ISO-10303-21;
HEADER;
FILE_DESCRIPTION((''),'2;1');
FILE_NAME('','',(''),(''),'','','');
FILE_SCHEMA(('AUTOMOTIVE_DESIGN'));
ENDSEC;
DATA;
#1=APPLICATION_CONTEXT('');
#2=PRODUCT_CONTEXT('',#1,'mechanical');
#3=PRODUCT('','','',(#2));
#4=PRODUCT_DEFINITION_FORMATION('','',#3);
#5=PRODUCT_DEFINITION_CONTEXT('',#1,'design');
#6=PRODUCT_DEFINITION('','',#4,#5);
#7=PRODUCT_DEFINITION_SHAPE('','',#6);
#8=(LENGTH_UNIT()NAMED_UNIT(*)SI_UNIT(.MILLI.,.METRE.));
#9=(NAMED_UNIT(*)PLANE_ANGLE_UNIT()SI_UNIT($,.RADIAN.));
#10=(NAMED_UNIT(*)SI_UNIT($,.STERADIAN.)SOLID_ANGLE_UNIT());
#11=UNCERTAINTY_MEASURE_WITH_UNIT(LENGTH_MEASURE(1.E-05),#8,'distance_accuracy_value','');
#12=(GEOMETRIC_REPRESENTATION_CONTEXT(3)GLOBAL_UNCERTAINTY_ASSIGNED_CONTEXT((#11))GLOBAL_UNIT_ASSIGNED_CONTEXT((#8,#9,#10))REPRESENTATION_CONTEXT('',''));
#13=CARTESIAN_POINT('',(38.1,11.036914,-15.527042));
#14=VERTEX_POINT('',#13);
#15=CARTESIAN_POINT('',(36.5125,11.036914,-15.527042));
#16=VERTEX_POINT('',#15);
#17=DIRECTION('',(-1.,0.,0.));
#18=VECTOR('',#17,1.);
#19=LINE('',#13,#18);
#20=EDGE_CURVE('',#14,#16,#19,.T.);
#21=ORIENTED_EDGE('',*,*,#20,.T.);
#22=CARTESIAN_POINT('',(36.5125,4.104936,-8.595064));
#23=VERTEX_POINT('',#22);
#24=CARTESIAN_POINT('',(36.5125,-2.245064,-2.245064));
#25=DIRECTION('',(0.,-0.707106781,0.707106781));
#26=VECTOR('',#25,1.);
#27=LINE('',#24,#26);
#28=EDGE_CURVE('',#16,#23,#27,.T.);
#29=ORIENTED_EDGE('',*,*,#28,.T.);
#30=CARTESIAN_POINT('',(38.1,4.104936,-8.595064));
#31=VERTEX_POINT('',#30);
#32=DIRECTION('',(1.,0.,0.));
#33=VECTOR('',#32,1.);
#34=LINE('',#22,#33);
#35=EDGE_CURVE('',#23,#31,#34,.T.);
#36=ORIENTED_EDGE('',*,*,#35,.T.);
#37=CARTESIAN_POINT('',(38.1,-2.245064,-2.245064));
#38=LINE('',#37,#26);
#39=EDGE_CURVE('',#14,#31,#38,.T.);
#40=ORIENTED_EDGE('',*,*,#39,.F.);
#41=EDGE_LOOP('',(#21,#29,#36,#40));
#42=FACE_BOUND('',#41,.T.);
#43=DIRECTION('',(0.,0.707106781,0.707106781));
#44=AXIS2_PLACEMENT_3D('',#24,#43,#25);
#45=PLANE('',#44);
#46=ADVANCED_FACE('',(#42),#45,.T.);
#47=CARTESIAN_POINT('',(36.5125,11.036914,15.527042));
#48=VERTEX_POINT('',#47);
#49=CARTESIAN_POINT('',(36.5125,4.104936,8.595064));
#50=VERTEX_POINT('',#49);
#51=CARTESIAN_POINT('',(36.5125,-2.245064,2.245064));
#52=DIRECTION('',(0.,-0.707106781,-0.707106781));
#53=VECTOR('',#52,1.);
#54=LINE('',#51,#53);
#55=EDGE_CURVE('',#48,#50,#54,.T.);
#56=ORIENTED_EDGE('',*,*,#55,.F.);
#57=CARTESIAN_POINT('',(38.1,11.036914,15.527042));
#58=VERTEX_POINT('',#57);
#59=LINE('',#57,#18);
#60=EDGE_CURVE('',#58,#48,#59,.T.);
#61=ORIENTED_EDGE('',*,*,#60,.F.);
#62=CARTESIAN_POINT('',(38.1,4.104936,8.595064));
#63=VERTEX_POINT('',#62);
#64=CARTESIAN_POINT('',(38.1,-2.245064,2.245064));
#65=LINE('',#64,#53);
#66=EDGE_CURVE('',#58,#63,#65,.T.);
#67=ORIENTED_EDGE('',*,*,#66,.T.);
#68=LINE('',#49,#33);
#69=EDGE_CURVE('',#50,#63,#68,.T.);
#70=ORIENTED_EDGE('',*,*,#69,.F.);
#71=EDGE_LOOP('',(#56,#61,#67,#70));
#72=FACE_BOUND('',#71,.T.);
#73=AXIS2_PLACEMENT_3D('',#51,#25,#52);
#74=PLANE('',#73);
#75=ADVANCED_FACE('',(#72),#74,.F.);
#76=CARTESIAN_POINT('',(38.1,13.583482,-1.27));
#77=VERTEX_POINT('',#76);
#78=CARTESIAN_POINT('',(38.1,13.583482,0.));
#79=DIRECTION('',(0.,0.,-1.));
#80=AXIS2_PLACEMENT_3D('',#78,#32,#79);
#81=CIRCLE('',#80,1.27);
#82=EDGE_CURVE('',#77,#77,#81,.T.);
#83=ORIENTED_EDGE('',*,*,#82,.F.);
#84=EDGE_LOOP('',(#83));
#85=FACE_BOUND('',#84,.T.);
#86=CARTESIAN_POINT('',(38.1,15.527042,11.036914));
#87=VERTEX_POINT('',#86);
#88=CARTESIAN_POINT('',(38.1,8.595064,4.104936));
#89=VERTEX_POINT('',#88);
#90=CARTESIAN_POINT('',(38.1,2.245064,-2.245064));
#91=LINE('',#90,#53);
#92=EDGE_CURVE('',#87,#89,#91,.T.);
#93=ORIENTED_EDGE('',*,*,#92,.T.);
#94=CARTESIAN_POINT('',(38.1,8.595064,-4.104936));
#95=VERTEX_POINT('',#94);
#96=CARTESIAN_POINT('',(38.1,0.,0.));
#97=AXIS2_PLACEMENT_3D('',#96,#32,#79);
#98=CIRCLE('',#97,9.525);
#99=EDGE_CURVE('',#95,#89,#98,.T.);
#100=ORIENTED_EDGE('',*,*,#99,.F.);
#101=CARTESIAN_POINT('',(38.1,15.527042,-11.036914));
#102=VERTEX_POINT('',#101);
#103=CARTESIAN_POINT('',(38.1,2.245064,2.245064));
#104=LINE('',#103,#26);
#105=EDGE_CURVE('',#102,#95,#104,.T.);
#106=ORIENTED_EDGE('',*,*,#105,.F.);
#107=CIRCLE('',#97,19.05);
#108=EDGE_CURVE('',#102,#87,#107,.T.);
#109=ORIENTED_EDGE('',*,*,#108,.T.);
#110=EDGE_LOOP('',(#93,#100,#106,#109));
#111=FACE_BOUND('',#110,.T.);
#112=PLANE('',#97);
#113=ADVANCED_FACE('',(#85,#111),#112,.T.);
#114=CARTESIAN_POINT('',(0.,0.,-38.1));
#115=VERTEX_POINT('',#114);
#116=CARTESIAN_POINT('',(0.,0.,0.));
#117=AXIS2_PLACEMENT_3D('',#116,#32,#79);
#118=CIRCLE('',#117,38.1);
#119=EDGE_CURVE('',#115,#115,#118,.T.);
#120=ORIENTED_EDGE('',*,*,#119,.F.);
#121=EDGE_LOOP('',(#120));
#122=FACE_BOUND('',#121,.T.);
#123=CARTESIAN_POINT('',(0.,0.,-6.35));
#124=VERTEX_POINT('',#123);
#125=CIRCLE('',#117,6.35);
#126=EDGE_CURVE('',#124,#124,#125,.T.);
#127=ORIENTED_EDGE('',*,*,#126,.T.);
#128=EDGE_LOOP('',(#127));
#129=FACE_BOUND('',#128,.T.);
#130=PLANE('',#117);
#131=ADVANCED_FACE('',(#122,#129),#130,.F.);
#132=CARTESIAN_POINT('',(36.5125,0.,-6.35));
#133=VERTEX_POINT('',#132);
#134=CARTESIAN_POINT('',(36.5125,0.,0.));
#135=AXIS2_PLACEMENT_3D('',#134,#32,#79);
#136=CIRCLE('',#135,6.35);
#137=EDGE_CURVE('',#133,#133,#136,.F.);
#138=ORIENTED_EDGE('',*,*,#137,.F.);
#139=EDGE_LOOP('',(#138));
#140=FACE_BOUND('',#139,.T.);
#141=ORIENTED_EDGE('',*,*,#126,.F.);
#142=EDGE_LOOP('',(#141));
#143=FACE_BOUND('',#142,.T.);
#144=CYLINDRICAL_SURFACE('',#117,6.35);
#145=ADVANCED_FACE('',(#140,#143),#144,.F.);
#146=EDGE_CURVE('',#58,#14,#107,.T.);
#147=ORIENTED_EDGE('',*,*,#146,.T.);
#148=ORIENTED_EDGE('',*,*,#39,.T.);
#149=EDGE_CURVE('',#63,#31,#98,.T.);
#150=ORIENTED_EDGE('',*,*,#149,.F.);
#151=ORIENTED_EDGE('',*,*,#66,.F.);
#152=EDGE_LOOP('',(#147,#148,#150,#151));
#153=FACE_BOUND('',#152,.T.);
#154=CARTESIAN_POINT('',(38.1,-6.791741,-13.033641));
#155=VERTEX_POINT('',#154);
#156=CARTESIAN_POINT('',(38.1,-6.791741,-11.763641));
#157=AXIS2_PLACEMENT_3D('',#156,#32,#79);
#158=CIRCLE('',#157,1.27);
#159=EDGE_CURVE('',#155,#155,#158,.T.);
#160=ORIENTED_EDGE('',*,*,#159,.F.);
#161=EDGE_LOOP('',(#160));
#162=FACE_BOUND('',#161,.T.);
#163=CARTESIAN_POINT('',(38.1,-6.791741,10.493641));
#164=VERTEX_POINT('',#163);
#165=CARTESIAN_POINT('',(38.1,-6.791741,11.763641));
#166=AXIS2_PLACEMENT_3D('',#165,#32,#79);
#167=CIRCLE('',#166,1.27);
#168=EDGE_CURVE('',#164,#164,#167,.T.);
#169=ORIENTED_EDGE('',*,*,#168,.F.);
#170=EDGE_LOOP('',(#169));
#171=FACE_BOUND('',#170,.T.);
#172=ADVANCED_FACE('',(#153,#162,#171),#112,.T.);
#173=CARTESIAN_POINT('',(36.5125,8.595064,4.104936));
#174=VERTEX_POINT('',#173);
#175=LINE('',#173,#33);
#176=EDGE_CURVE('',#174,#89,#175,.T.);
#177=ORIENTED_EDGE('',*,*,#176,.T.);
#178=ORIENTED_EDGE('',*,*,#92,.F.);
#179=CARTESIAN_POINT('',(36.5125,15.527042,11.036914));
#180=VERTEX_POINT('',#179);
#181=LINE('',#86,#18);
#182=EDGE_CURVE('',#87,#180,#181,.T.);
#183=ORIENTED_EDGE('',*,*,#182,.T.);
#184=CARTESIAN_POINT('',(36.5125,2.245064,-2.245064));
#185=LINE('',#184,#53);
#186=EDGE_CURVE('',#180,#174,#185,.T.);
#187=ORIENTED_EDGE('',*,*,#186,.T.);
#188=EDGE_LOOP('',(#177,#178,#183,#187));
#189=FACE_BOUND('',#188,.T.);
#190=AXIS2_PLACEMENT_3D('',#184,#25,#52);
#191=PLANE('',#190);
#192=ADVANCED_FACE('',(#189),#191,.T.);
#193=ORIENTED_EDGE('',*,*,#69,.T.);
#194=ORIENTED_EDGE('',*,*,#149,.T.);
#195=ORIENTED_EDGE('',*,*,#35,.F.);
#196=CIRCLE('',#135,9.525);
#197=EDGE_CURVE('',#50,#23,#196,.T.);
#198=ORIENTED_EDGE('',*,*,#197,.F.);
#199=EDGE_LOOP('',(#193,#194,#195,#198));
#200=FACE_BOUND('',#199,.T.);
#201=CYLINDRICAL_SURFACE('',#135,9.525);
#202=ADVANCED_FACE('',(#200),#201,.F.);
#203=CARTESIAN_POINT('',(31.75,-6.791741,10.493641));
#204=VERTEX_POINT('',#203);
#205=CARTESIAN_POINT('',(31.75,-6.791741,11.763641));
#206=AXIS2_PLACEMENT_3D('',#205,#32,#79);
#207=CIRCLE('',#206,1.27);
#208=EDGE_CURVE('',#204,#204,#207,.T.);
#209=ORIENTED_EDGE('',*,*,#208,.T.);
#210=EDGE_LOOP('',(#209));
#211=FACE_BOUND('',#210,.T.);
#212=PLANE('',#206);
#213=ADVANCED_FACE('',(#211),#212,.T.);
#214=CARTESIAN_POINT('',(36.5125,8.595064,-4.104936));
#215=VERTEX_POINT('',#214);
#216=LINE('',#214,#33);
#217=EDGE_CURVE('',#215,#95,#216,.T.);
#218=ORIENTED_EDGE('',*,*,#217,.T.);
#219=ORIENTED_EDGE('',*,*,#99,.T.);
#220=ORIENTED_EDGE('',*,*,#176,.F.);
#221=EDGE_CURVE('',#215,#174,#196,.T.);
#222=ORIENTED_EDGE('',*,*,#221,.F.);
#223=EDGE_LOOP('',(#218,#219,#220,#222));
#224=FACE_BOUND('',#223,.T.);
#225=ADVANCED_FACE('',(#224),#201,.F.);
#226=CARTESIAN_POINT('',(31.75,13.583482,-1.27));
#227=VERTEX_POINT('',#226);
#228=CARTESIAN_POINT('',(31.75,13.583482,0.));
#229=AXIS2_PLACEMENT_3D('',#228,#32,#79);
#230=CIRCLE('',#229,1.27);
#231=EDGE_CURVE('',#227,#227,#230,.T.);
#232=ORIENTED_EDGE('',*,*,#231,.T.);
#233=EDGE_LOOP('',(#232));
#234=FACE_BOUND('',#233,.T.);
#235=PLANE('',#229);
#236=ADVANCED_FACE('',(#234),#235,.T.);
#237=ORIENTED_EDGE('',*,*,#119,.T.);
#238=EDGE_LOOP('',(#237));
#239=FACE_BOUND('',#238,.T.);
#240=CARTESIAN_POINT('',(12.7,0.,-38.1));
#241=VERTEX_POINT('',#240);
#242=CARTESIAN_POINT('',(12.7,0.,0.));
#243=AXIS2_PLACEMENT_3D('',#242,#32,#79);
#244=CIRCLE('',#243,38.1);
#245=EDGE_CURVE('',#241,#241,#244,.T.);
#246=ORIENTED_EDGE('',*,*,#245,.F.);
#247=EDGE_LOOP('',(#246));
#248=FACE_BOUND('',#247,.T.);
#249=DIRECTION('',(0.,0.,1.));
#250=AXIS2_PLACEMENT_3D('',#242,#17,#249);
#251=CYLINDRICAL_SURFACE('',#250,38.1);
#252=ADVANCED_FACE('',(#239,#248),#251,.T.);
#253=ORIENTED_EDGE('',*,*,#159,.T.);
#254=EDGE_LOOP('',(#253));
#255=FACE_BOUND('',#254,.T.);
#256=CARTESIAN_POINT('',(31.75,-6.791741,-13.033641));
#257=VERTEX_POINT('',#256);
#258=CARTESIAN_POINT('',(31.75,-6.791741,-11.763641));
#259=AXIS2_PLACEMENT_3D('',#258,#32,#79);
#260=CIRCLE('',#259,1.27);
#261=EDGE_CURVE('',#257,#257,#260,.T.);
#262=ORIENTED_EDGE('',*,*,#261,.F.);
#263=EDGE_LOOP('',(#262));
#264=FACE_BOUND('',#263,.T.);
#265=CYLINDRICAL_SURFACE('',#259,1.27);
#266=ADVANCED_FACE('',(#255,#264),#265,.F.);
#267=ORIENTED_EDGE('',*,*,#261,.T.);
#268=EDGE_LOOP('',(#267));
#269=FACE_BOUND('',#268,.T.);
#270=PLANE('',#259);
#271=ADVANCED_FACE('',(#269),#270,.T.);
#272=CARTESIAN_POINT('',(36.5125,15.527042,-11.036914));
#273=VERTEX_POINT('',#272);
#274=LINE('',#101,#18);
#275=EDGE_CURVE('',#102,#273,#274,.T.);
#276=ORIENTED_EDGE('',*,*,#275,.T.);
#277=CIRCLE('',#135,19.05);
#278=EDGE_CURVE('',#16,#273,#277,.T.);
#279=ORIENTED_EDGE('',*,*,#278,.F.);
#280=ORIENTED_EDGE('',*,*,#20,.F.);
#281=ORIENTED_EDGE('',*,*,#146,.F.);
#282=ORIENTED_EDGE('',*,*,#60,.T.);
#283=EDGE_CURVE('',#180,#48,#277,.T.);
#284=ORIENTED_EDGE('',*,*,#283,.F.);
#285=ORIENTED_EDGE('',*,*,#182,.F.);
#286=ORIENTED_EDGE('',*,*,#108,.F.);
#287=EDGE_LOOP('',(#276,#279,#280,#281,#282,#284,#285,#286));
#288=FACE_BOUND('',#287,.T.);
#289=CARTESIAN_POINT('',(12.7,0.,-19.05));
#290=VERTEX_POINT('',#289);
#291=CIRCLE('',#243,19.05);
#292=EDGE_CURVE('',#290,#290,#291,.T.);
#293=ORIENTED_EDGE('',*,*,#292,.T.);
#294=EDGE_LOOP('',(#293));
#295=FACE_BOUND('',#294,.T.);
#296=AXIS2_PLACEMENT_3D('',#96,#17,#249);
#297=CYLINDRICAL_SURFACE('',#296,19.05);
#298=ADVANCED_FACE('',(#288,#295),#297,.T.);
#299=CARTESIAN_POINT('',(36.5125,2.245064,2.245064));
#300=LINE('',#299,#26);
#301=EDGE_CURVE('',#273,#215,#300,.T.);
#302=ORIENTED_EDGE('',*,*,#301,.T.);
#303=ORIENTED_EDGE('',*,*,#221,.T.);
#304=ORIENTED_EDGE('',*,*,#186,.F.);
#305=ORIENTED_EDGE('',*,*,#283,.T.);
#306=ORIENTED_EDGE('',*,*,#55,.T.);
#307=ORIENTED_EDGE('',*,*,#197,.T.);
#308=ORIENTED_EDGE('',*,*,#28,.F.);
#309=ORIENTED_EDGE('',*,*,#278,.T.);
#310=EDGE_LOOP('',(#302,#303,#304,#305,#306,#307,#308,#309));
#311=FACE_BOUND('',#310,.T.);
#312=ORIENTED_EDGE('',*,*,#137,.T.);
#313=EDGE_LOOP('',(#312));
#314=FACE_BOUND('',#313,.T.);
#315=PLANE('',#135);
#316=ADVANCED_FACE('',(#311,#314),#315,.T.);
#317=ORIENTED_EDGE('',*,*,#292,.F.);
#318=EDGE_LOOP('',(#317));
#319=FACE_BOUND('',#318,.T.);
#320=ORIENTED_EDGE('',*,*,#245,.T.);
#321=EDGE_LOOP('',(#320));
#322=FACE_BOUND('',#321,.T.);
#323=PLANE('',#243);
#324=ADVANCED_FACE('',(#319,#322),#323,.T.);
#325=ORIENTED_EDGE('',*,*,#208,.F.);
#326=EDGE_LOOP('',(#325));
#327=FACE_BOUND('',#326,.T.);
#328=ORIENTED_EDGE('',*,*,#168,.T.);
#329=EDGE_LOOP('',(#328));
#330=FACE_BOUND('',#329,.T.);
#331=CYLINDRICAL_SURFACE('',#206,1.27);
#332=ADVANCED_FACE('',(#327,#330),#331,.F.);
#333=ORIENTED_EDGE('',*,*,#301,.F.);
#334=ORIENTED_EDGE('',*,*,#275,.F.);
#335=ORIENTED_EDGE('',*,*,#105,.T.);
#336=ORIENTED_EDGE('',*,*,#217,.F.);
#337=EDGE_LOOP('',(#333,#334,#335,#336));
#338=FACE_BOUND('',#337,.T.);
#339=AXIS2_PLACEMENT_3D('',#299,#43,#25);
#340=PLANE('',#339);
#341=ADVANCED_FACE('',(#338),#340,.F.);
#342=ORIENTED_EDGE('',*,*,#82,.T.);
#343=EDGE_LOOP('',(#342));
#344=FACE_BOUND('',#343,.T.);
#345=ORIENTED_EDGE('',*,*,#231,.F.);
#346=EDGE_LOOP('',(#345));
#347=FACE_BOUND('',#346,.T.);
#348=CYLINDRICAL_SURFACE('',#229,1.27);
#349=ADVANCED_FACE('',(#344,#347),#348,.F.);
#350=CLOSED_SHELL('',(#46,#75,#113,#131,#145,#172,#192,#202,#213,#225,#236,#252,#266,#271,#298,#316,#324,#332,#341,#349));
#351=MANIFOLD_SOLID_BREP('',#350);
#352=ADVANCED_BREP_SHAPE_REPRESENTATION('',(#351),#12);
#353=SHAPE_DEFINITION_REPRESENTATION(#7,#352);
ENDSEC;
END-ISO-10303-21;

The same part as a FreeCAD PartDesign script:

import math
import FreeCAD as App
import Part
import Sketcher
Q = App.Units.Quantity

doc = App.newDocument("Part")
body = doc.addObject("PartDesign::Body", "Body")

# Sketch on YZ plane
sketch1 = body.newObject("Sketcher::SketchObject", "Sketch")
sketch1.AttachmentSupport = (doc.getObject("YZ_Plane"), [""])
sketch1.MapMode = "FlatFace"
sketch1.addGeometry(Part.Circle(App.Vector(0, 0, 0), App.Vector(0, 0, 1), 38), False)
sketch1.addConstraint([
    Sketcher.Constraint("Coincident", 0, 3, -1, 1),
    Sketcher.Constraint("Diameter", 0, Q("3 in")),
])
pad1 = body.newObject("PartDesign::Pad", "Pad")
pad1.Profile = sketch1
pad1.Length = Q("0.5 in")

# Sketch on YZ plane
sketch2 = body.newObject("Sketcher::SketchObject", "Sketch001")
sketch2.AttachmentSupport = (doc.getObject("YZ_Plane"), [""])
sketch2.MapMode = "FlatFace"
sketch2.AttachmentOffset = App.Placement(App.Vector(0, 0, 0.5 * 25.4), App.Rotation())
sketch2.addGeometry(Part.Circle(App.Vector(0, 0, 0), App.Vector(0, 0, 1), 19), False)
sketch2.addConstraint([
    Sketcher.Constraint("Coincident", 0, 3, -1, 1),
    Sketcher.Constraint("Diameter", 0, Q("1.5 in")),
])
pad2 = body.newObject("PartDesign::Pad", "Pad001")
pad2.Profile = sketch2
pad2.Length = Q("1 in")

# Sketch on YZ plane
sketch3 = body.newObject("Sketcher::SketchObject", "Sketch002")
sketch3.AttachmentSupport = (doc.getObject("YZ_Plane"), [""])
sketch3.MapMode = "FlatFace"
sketch3.AttachmentOffset = App.Placement(App.Vector(0, 0, 1.5 * 25.4), App.Rotation())
sketch3.addGeometry(Part.Circle(App.Vector(0, 0, 0), App.Vector(0, 0, 1), 6), False)
sketch3.addConstraint([
    Sketcher.Constraint("Coincident", 0, 3, -1, 1),
    Sketcher.Constraint("Diameter", 0, Q("0.5 in")),
])
pocket1 = body.newObject("PartDesign::Pocket", "Pocket")
pocket1.Profile = sketch3
pocket1.Type = "ThroughAll"

# Sketch on YZ plane
sketch4 = body.newObject("Sketcher::SketchObject", "Sketch003")
sketch4.AttachmentSupport = (doc.getObject("YZ_Plane"), [""])
sketch4.MapMode = "FlatFace"
sketch4.AttachmentOffset = App.Placement(App.Vector(0, 0, 1.5 * 25.4), App.Rotation())
sketch4.addGeometry([
    Part.Circle(App.Vector(13.6, 0, 0), App.Vector(0, 0, 1), 1.3),
    Part.Circle(App.Vector(-6.8, -11.8, 0), App.Vector(0, 0, 1), 1.3),
    Part.Circle(App.Vector(-6.8, 11.8, 0), App.Vector(0, 0, 1), 1.3),
], False)
sketch4.addConstraint([
    Sketcher.Constraint("Equal", 0, 1),
    Sketcher.Constraint("Equal", 1, 2),
    Sketcher.Constraint("Symmetric", 1, 3, 2, 3, -1),
    Sketcher.Constraint("PointOnObject", 0, 3, -1),
    Sketcher.Constraint("Diameter", 0, Q("0.1 in")),
    Sketcher.Constraint("DistanceX", 1, 3, -1, 1, 6.791741),
    Sketcher.Constraint("DistanceY", 1, 3, -1, 1, 11.763641),
    Sketcher.Constraint("DistanceX", -1, 1, 0, 3, 13.583482),
])
pocket2 = body.newObject("PartDesign::Pocket", "Pocket001")
pocket2.Profile = sketch4
pocket2.Length = Q("0.25 in")

# Sketch on YZ plane
sketch5 = body.newObject("Sketcher::SketchObject", "Sketch004")
sketch5.AttachmentSupport = (doc.getObject("YZ_Plane"), [""])
sketch5.MapMode = "FlatFace"
sketch5.AttachmentOffset = App.Placement(App.Vector(0, 0, 1.5 * 25.4), App.Rotation())
sketch5.addGeometry([
    Part.LineSegment(App.Vector(11, 16, 0), App.Vector(4, 9, 0)),  # 0
    Part.ArcOfCircle(Part.Circle(App.Vector(0, 0, 0), App.Vector(0, 0, 1), 10), math.radians(64), math.radians(296)),  # 1
    Part.LineSegment(App.Vector(4, -9, 0), App.Vector(11, -16, 0)),  # 2
    Part.LineSegment(App.Vector(11, -16, 0), App.Vector(16, -11, 0)),  # 3
    Part.LineSegment(App.Vector(16, -11, 0), App.Vector(9, -4, 0)),  # 4
    Part.ArcOfCircle(Part.Circle(App.Vector(0, 0, 0), App.Vector(0, 0, 1), 10), math.radians(-26), math.radians(26)),  # 5
    Part.LineSegment(App.Vector(9, 4, 0), App.Vector(16, 11, 0)),  # 6
    Part.LineSegment(App.Vector(16, 11, 0), App.Vector(11, 16, 0)),  # 7
], False)
sketch5.addConstraint([
    Sketcher.Constraint("Coincident", 0, 2, 1, 1),
    Sketcher.Constraint("Coincident", 1, 2, 2, 1),
    Sketcher.Constraint("Coincident", 2, 2, 3, 1),
    Sketcher.Constraint("Coincident", 3, 2, 4, 1),
    Sketcher.Constraint("Coincident", 4, 2, 5, 1),
    Sketcher.Constraint("Coincident", 5, 2, 6, 1),
    Sketcher.Constraint("Coincident", 6, 2, 7, 1),
    Sketcher.Constraint("Coincident", 7, 2, 0, 1),
    Sketcher.Constraint("Coincident", 1, 3, -1, 1),
    Sketcher.Constraint("Coincident", 5, 3, -1, 1),
    Sketcher.Constraint("Equal", 1, 5),
    Sketcher.Constraint("Symmetric", 3, 2, 6, 2, -1),
    Sketcher.Constraint("Symmetric", 2, 2, 7, 2, -1),
    Sketcher.Constraint("Perpendicular", 0, 2),
    Sketcher.Constraint("Perpendicular", 2, 3),
    Sketcher.Constraint("Perpendicular", 3, 4),
    Sketcher.Constraint("Perpendicular", 4, 6),
    Sketcher.Constraint("Perpendicular", 6, 7),
    Sketcher.Constraint("Equal", 2, 4),
    Sketcher.Constraint("Radius", 1, Q("0.375 in")),
    Sketcher.Constraint("DistanceY", 1, 2, 5, 2, Q("0.5 in")),
    Sketcher.Constraint("DistanceX", -1, 1, 2, 2, 11.22532),
])
pocket3 = body.newObject("PartDesign::Pocket", "Pocket002")
pocket3.Profile = sketch5
pocket3.Length = Q("0.0625 in")

doc.recompute()
